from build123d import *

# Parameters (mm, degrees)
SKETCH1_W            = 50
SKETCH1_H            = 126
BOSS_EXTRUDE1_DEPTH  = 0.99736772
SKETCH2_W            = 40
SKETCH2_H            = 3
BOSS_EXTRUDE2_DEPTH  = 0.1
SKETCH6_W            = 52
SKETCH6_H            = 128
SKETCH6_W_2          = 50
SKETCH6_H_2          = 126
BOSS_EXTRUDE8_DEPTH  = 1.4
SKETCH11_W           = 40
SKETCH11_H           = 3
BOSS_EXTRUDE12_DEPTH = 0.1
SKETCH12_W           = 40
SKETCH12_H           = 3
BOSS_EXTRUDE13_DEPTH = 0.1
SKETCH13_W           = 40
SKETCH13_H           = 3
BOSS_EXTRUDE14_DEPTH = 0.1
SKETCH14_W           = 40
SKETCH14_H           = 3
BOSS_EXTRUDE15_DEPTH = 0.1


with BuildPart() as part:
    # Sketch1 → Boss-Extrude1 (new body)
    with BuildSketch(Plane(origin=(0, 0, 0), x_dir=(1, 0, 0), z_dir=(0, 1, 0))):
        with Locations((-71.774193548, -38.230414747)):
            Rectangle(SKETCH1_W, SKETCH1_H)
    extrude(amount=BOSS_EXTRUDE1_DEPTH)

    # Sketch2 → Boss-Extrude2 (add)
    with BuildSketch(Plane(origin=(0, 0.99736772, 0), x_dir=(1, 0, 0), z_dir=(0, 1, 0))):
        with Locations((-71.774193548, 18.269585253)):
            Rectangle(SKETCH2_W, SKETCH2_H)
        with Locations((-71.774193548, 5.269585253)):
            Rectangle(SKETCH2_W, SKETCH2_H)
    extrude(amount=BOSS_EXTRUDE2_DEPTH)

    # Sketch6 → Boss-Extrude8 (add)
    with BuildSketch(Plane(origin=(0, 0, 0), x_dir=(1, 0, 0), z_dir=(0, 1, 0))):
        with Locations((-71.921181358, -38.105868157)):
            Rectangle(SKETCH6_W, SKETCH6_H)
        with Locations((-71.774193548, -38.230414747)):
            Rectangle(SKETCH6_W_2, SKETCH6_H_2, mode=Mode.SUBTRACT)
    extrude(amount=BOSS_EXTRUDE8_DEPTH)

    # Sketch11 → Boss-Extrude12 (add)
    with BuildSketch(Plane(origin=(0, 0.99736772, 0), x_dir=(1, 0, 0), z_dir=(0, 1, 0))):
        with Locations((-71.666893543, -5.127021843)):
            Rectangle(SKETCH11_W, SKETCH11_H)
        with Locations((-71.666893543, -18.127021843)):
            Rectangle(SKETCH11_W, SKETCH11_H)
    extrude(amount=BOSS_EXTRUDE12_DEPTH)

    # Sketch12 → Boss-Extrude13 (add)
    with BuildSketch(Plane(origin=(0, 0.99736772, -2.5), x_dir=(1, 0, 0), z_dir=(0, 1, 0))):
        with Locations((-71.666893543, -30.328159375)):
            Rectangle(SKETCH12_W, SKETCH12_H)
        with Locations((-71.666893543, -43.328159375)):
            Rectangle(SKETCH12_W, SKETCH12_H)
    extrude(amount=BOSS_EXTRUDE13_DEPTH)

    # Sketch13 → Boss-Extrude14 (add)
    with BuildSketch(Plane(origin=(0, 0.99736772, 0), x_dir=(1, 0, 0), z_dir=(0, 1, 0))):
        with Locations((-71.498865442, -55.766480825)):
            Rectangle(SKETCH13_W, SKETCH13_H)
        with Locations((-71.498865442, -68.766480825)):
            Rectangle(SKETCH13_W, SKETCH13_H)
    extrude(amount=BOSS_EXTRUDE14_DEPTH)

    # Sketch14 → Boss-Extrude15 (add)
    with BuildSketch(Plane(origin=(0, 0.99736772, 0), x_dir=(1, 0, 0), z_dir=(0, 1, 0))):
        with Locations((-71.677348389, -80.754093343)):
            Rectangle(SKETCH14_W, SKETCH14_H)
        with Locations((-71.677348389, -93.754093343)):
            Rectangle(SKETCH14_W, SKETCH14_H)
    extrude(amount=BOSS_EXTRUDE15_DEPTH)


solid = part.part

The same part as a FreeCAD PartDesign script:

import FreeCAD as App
import Part
import Sketcher
Q = App.Units.Quantity

doc = App.newDocument("Part")
body = doc.addObject("PartDesign::Body", "Body")

# Sketch on XZ plane
sketch1 = body.newObject("Sketcher::SketchObject", "Sketch")
sketch1.AttachmentSupport = (doc.getObject("XZ_Plane"), [""])
sketch1.MapMode = "FlatFace"
sketch1.addGeometry([
    Part.LineSegment(App.Vector(-97, -25, 0), App.Vector(-97, 101, 0)),
    Part.LineSegment(App.Vector(-97, 101, 0), App.Vector(-47, 101, 0)),
    Part.LineSegment(App.Vector(-47, 101, 0), App.Vector(-47, -25, 0)),
    Part.LineSegment(App.Vector(-47, -25, 0), App.Vector(-97, -25, 0)),
], False)
sketch1.addConstraint([
    Sketcher.Constraint("Coincident", 0, 2, 1, 1),
    Sketcher.Constraint("Coincident", 1, 2, 2, 1),
    Sketcher.Constraint("Coincident", 2, 2, 3, 1),
    Sketcher.Constraint("Coincident", 3, 2, 0, 1),
    Sketcher.Constraint("Vertical", 0),
    Sketcher.Constraint("Horizontal", 1),
    Sketcher.Constraint("Vertical", 2),
    Sketcher.Constraint("Horizontal", 3),
    Sketcher.Constraint("DistanceX", 1, 1, 1, 2, Q("50 mm")),
    Sketcher.Constraint("DistanceY", 0, 1, 0, 2, Q("126 mm")),
    Sketcher.Constraint("DistanceX", 0, 2, -1, 1, Q("96.774194 mm")),
    Sketcher.Constraint("DistanceY", -1, 1, 0, 2, Q("101.230415 mm")),
])
pad1 = body.newObject("PartDesign::Pad", "Pad")
pad1.Profile = sketch1
pad1.Length = 0.997368
pad1.Reversed = True

# Sketch on XZ plane
sketch2 = body.newObject("Sketcher::SketchObject", "Sketch001")
sketch2.AttachmentSupport = (doc.getObject("XZ_Plane"), [""])
sketch2.MapMode = "FlatFace"
sketch2.AttachmentOffset = App.Placement(App.Vector(0, 0, -0.997368), App.Rotation())
sketch2.addGeometry([
    Part.LineSegment(App.Vector(-91.8, -19.8, 0), App.Vector(-91.8, -16.8, 0)),  # 0
    Part.LineSegment(App.Vector(-91.8, -16.8, 0), App.Vector(-51.8, -16.8, 0)),  # 1
    Part.LineSegment(App.Vector(-51.8, -16.8, 0), App.Vector(-51.8, -19.8, 0)),  # 2
    Part.LineSegment(App.Vector(-51.8, -19.8, 0), App.Vector(-91.8, -19.8, 0)),  # 3
    Part.LineSegment(App.Vector(-91.8, -6.8, 0), App.Vector(-91.8, -3.8, 0)),  # 4
    Part.LineSegment(App.Vector(-91.8, -3.8, 0), App.Vector(-51.8, -3.8, 0)),  # 5
    Part.LineSegment(App.Vector(-51.8, -3.8, 0), App.Vector(-51.8, -6.8, 0)),  # 6
    Part.LineSegment(App.Vector(-51.8, -6.8, 0), App.Vector(-91.8, -6.8, 0)),  # 7
], False)
sketch2.addConstraint([
    Sketcher.Constraint("Coincident", 0, 2, 1, 1),
    Sketcher.Constraint("Coincident", 1, 2, 2, 1),
    Sketcher.Constraint("Coincident", 2, 2, 3, 1),
    Sketcher.Constraint("Coincident", 3, 2, 0, 1),
    Sketcher.Constraint("Coincident", 4, 2, 5, 1),
    Sketcher.Constraint("Coincident", 5, 2, 6, 1),
    Sketcher.Constraint("Coincident", 6, 2, 7, 1),
    Sketcher.Constraint("Coincident", 7, 2, 4, 1),
    Sketcher.Constraint("Vertical", 0),
    Sketcher.Constraint("Horizontal", 1),
    Sketcher.Constraint("Vertical", 2),
    Sketcher.Constraint("Horizontal", 3),
    Sketcher.Constraint("Vertical", 4),
    Sketcher.Constraint("Horizontal", 5),
    Sketcher.Constraint("Vertical", 6),
    Sketcher.Constraint("Horizontal", 7),
    Sketcher.Constraint("Vertical", 3, 2, 4, 2),
    Sketcher.Constraint("Vertical", 2, 2, 5, 2),
    Sketcher.Constraint("Equal", 2, 4),
    Sketcher.Constraint("DistanceX", 1, 1, 1, 2, Q("40 mm")),
    Sketcher.Constraint("DistanceY", 0, 1, 0, 2, Q("3 mm")),
    Sketcher.Constraint("DistanceY", 0, 2, 4, 2, Q("13 mm")),
    Sketcher.Constraint("DistanceX", 0, 2, -1, 1, Q("91.774194 mm")),
    Sketcher.Constraint("DistanceY", 0, 2, -1, 1, Q("16.769585 mm")),
])
pad2 = body.newObject("PartDesign::Pad", "Pad001")
pad2.Profile = sketch2
pad2.Length = 0.1
pad2.Reversed = True

# Sketch on XZ plane
sketch3 = body.newObject("Sketcher::SketchObject", "Sketch002")
sketch3.AttachmentSupport = (doc.getObject("XZ_Plane"), [""])
sketch3.MapMode = "FlatFace"
sketch3.addGeometry([
    Part.LineSegment(App.Vector(-98, -26, 0), App.Vector(-98, 102, 0)),  # 0
    Part.LineSegment(App.Vector(-98, 102, 0), App.Vector(-46, 102, 0)),  # 1
    Part.LineSegment(App.Vector(-46, 102, 0), App.Vector(-46, -26, 0)),  # 2
    Part.LineSegment(App.Vector(-46, -26, 0), App.Vector(-98, -26, 0)),  # 3
    Part.LineSegment(App.Vector(-47, 101, 0), App.Vector(-97, 101, 0)),  # 4
    Part.LineSegment(App.Vector(-97, 101, 0), App.Vector(-97, -25, 0)),  # 5
    Part.LineSegment(App.Vector(-97, -25, 0), App.Vector(-47, -25, 0)),  # 6
    Part.LineSegment(App.Vector(-47, -25, 0), App.Vector(-47, 101, 0)),  # 7
], False)
sketch3.addConstraint([
    Sketcher.Constraint("Coincident", 0, 2, 1, 1),
    Sketcher.Constraint("Coincident", 1, 2, 2, 1),
    Sketcher.Constraint("Coincident", 2, 2, 3, 1),
    Sketcher.Constraint("Coincident", 3, 2, 0, 1),
    Sketcher.Constraint("Coincident", 4, 2, 5, 1),
    Sketcher.Constraint("Coincident", 5, 2, 6, 1),
    Sketcher.Constraint("Coincident", 6, 2, 7, 1),
    Sketcher.Constraint("Coincident", 7, 2, 4, 1),
    Sketcher.Constraint("Vertical", 0),
    Sketcher.Constraint("Horizontal", 1),
    Sketcher.Constraint("Vertical", 2),
    Sketcher.Constraint("Horizontal", 3),
    Sketcher.Constraint("Horizontal", 4),
    Sketcher.Constraint("Vertical", 5),
    Sketcher.Constraint("Horizontal", 6),
    Sketcher.Constraint("Vertical", 7),
    Sketcher.Constraint("DistanceX", 1, 1, 1, 2, Q("52 mm")),
    Sketcher.Constraint("DistanceX", 4, 2, 4, 1, Q("50 mm")),
    Sketcher.Constraint("DistanceY", 0, 1, 0, 2, Q("128 mm")),
    Sketcher.Constraint("DistanceY", 5, 2, 5, 1, Q("126 mm")),
    Sketcher.Constraint("DistanceX", 0, 2, -1, 1, Q("97.921181 mm")),
    Sketcher.Constraint("DistanceY", -1, 1, 0, 2, Q("102.105868 mm")),
    Sketcher.Constraint("DistanceX", 4, 2, -1, 1, Q("96.774194 mm")),
    Sketcher.Constraint("DistanceY", -1, 1, 4, 2, Q("101.230415 mm")),
])
pad3 = body.newObject("PartDesign::Pad", "Pad002")
pad3.Profile = sketch3
pad3.Length = 1.4
pad3.Reversed = True

# Sketch on XZ plane
sketch4 = body.newObject("Sketcher::SketchObject", "Sketch003")
sketch4.AttachmentSupport = (doc.getObject("XZ_Plane"), [""])
sketch4.MapMode = "FlatFace"
sketch4.AttachmentOffset = App.Placement(App.Vector(0, 0, -0.997368), App.Rotation())
sketch4.addGeometry([
    Part.LineSegment(App.Vector(-91.7, 3.6, 0), App.Vector(-91.7, 6.6, 0)),  # 0
    Part.LineSegment(App.Vector(-91.7, 6.6, 0), App.Vector(-51.7, 6.6, 0)),  # 1
    Part.LineSegment(App.Vector(-51.7, 6.6, 0), App.Vector(-51.7, 3.6, 0)),  # 2
    Part.LineSegment(App.Vector(-51.7, 3.6, 0), App.Vector(-91.7, 3.6, 0)),  # 3
    Part.LineSegment(App.Vector(-91.7, 16.6, 0), App.Vector(-91.7, 19.6, 0)),  # 4
    Part.LineSegment(App.Vector(-91.7, 19.6, 0), App.Vector(-51.7, 19.6, 0)),  # 5
    Part.LineSegment(App.Vector(-51.7, 19.6, 0), App.Vector(-51.7, 16.6, 0)),  # 6
    Part.LineSegment(App.Vector(-51.7, 16.6, 0), App.Vector(-91.7, 16.6, 0)),  # 7
], False)
sketch4.addConstraint([
    Sketcher.Constraint("Coincident", 0, 2, 1, 1),
    Sketcher.Constraint("Coincident", 1, 2, 2, 1),
    Sketcher.Constraint("Coincident", 2, 2, 3, 1),
    Sketcher.Constraint("Coincident", 3, 2, 0, 1),
    Sketcher.Constraint("Coincident", 4, 2, 5, 1),
    Sketcher.Constraint("Coincident", 5, 2, 6, 1),
    Sketcher.Constraint("Coincident", 6, 2, 7, 1),
    Sketcher.Constraint("Coincident", 7, 2, 4, 1),
    Sketcher.Constraint("Vertical", 0),
    Sketcher.Constraint("Horizontal", 1),
    Sketcher.Constraint("Vertical", 2),
    Sketcher.Constraint("Horizontal", 3),
    Sketcher.Constraint("Vertical", 4),
    Sketcher.Constraint("Horizontal", 5),
    Sketcher.Constraint("Vertical", 6),
    Sketcher.Constraint("Horizontal", 7),
    Sketcher.Constraint("Vertical", 3, 2, 4, 2),
    Sketcher.Constraint("Vertical", 2, 2, 5, 2),
    Sketcher.Constraint("Equal", 2, 4),
    Sketcher.Constraint("DistanceX", 1, 1, 1, 2, Q("40 mm")),
    Sketcher.Constraint("DistanceY", 0, 1, 0, 2, Q("3 mm")),
    Sketcher.Constraint("DistanceY", 0, 2, 4, 2, Q("13 mm")),
    Sketcher.Constraint("DistanceY", -1, 1, 0, 2, Q("6.627022 mm")),
    Sketcher.Constraint("DistanceX", 0, 2, -1, 1, Q("91.666894 mm")),
])
pad4 = body.newObject("PartDesign::Pad", "Pad003")
pad4.Profile = sketch4
pad4.Length = 0.1
pad4.Reversed = True

# Sketch on XZ plane
sketch5 = body.newObject("Sketcher::SketchObject", "Sketch004")
sketch5.AttachmentSupport = (doc.getObject("XZ_Plane"), [""])
sketch5.MapMode = "FlatFace"
sketch5.AttachmentOffset = App.Placement(App.Vector(0, 0, -0.997368), App.Rotation())
sketch5.addGeometry([
    Part.LineSegment(App.Vector(-91.7, 26.3, 0), App.Vector(-91.7, 29.3, 0)),  # 0
    Part.LineSegment(App.Vector(-91.7, 29.3, 0), App.Vector(-51.7, 29.3, 0)),  # 1
    Part.LineSegment(App.Vector(-51.7, 29.3, 0), App.Vector(-51.7, 26.3, 0)),  # 2
    Part.LineSegment(App.Vector(-51.7, 26.3, 0), App.Vector(-91.7, 26.3, 0)),  # 3
    Part.LineSegment(App.Vector(-91.7, 39.3, 0), App.Vector(-91.7, 42.3, 0)),  # 4
    Part.LineSegment(App.Vector(-91.7, 42.3, 0), App.Vector(-51.7, 42.3, 0)),  # 5
    Part.LineSegment(App.Vector(-51.7, 42.3, 0), App.Vector(-51.7, 39.3, 0)),  # 6
    Part.LineSegment(App.Vector(-51.7, 39.3, 0), App.Vector(-91.7, 39.3, 0)),  # 7
], False)
sketch5.addConstraint([
    Sketcher.Constraint("Coincident", 0, 2, 1, 1),
    Sketcher.Constraint("Coincident", 1, 2, 2, 1),
    Sketcher.Constraint("Coincident", 2, 2, 3, 1),
    Sketcher.Constraint("Coincident", 3, 2, 0, 1),
    Sketcher.Constraint("Coincident", 4, 2, 5, 1),
    Sketcher.Constraint("Coincident", 5, 2, 6, 1),
    Sketcher.Constraint("Coincident", 6, 2, 7, 1),
    Sketcher.Constraint("Coincident", 7, 2, 4, 1),
    Sketcher.Constraint("Vertical", 0),
    Sketcher.Constraint("Horizontal", 1),
    Sketcher.Constraint("Vertical", 2),
    Sketcher.Constraint("Horizontal", 3),
    Sketcher.Constraint("Vertical", 4),
    Sketcher.Constraint("Horizontal", 5),
    Sketcher.Constraint("Vertical", 6),
    Sketcher.Constraint("Horizontal", 7),
    Sketcher.Constraint("Vertical", 3, 2, 4, 2),
    Sketcher.Constraint("Vertical", 2, 2, 5, 2),
    Sketcher.Constraint("Equal", 2, 4),
    Sketcher.Constraint("DistanceX", 1, 1, 1, 2, Q("40 mm")),
    Sketcher.Constraint("DistanceY", 0, 1, 0, 2, Q("3 mm")),
    Sketcher.Constraint("DistanceY", 0, 2, 4, 2, Q("13 mm")),
    Sketcher.Constraint("DistanceY", -1, 1, 0, 2, Q("29.328159 mm")),
    Sketcher.Constraint("DistanceX", 0, 2, -1, 1, Q("91.666894 mm")),
])
pad5 = body.newObject("PartDesign::Pad", "Pad004")
pad5.Profile = sketch5
pad5.Length = 0.1
pad5.Reversed = True

# Sketch on XZ plane
sketch6 = body.newObject("Sketcher::SketchObject", "Sketch005")
sketch6.AttachmentSupport = (doc.getObject("XZ_Plane"), [""])
sketch6.MapMode = "FlatFace"
sketch6.AttachmentOffset = App.Placement(App.Vector(0, 0, -0.997368), App.Rotation())
sketch6.addGeometry([
    Part.LineSegment(App.Vector(-91.5, 54.3, 0), App.Vector(-91.5, 57.3, 0)),  # 0
    Part.LineSegment(App.Vector(-91.5, 57.3, 0), App.Vector(-51.5, 57.3, 0)),  # 1
    Part.LineSegment(App.Vector(-51.5, 57.3, 0), App.Vector(-51.5, 54.3, 0)),  # 2
    Part.LineSegment(App.Vector(-51.5, 54.3, 0), App.Vector(-91.5, 54.3, 0)),  # 3
    Part.LineSegment(App.Vector(-91.5, 67.3, 0), App.Vector(-91.5, 70.3, 0)),  # 4
    Part.LineSegment(App.Vector(-91.5, 70.3, 0), App.Vector(-51.5, 70.3, 0)),  # 5
    Part.LineSegment(App.Vector(-51.5, 70.3, 0), App.Vector(-51.5, 67.3, 0)),  # 6
    Part.LineSegment(App.Vector(-51.5, 67.3, 0), App.Vector(-91.5, 67.3, 0)),  # 7
], False)
sketch6.addConstraint([
    Sketcher.Constraint("Coincident", 0, 2, 1, 1),
    Sketcher.Constraint("Coincident", 1, 2, 2, 1),
    Sketcher.Constraint("Coincident", 2, 2, 3, 1),
    Sketcher.Constraint("Coincident", 3, 2, 0, 1),
    Sketcher.Constraint("Coincident", 4, 2, 5, 1),
    Sketcher.Constraint("Coincident", 5, 2, 6, 1),
    Sketcher.Constraint("Coincident", 6, 2, 7, 1),
    Sketcher.Constraint("Coincident", 7, 2, 4, 1),
    Sketcher.Constraint("Vertical", 0),
    Sketcher.Constraint("Horizontal", 1),
    Sketcher.Constraint("Vertical", 2),
    Sketcher.Constraint("Horizontal", 3),
    Sketcher.Constraint("Vertical", 4),
    Sketcher.Constraint("Horizontal", 5),
    Sketcher.Constraint("Vertical", 6),
    Sketcher.Constraint("Horizontal", 7),
    Sketcher.Constraint("Vertical", 3, 2, 4, 2),
    Sketcher.Constraint("Vertical", 2, 2, 5, 2),
    Sketcher.Constraint("Equal", 2, 4),
    Sketcher.Constraint("DistanceX", 1, 1, 1, 2, Q("40 mm")),
    Sketcher.Constraint("DistanceY", 0, 1, 0, 2, Q("3 mm")),
    Sketcher.Constraint("DistanceY", 0, 2, 4, 2, Q("13 mm")),
    Sketcher.Constraint("DistanceY", -1, 1, 0, 2, Q("57.266481 mm")),
    Sketcher.Constraint("DistanceX", 0, 2, -1, 1, Q("91.498865 mm")),
])
pad6 = body.newObject("PartDesign::Pad", "Pad005")
pad6.Profile = sketch6
pad6.Length = 0.1
pad6.Reversed = True

# Sketch on XZ plane
sketch7 = body.newObject("Sketcher::SketchObject", "Sketch006")
sketch7.AttachmentSupport = (doc.getObject("XZ_Plane"), [""])
sketch7.MapMode = "FlatFace"
sketch7.AttachmentOffset = App.Placement(App.Vector(0, 0, -0.997368), App.Rotation())
sketch7.addGeometry([
    Part.LineSegment(App.Vector(-91.7, 79.3, 0), App.Vector(-91.7, 82.3, 0)),  # 0
    Part.LineSegment(App.Vector(-91.7, 82.3, 0), App.Vector(-51.7, 82.3, 0)),  # 1
    Part.LineSegment(App.Vector(-51.7, 82.3, 0), App.Vector(-51.7, 79.3, 0)),  # 2
    Part.LineSegment(App.Vector(-51.7, 79.3, 0), App.Vector(-91.7, 79.3, 0)),  # 3
    Part.LineSegment(App.Vector(-91.7, 92.3, 0), App.Vector(-91.7, 95.3, 0)),  # 4
    Part.LineSegment(App.Vector(-91.7, 95.3, 0), App.Vector(-51.7, 95.3, 0)),  # 5
    Part.LineSegment(App.Vector(-51.7, 95.3, 0), App.Vector(-51.7, 92.3, 0)),  # 6
    Part.LineSegment(App.Vector(-51.7, 92.3, 0), App.Vector(-91.7, 92.3, 0)),  # 7
], False)
sketch7.addConstraint([
    Sketcher.Constraint("Coincident", 0, 2, 1, 1),
    Sketcher.Constraint("Coincident", 1, 2, 2, 1),
    Sketcher.Constraint("Coincident", 2, 2, 3, 1),
    Sketcher.Constraint("Coincident", 3, 2, 0, 1),
    Sketcher.Constraint("Coincident", 4, 2, 5, 1),
    Sketcher.Constraint("Coincident", 5, 2, 6, 1),
    Sketcher.Constraint("Coincident", 6, 2, 7, 1),
    Sketcher.Constraint("Coincident", 7, 2, 4, 1),
    Sketcher.Constraint("Vertical", 0),
    Sketcher.Constraint("Horizontal", 1),
    Sketcher.Constraint("Vertical", 2),
    Sketcher.Constraint("Horizontal", 3),
    Sketcher.Constraint("Vertical", 4),
    Sketcher.Constraint("Horizontal", 5),
    Sketcher.Constraint("Vertical", 6),
    Sketcher.Constraint("Horizontal", 7),
    Sketcher.Constraint("Vertical", 3, 2, 4, 2),
    Sketcher.Constraint("Vertical", 2, 2, 5, 2),
    Sketcher.Constraint("Equal", 2, 4),
    Sketcher.Constraint("DistanceX", 1, 1, 1, 2, Q("40 mm")),
    Sketcher.Constraint("DistanceY", 0, 1, 0, 2, Q("3 mm")),
    Sketcher.Constraint("DistanceY", 0, 2, 4, 2, Q("13 mm")),
    Sketcher.Constraint("DistanceX", 0, 2, -1, 1, Q("91.677348 mm")),
    Sketcher.Constraint("DistanceY", -1, 1, 0, 2, Q("82.254093 mm")),
])
pad7 = body.newObject("PartDesign::Pad", "Pad006")
pad7.Profile = sketch7
pad7.Length = 0.1
pad7.Reversed = True

doc.recompute()
